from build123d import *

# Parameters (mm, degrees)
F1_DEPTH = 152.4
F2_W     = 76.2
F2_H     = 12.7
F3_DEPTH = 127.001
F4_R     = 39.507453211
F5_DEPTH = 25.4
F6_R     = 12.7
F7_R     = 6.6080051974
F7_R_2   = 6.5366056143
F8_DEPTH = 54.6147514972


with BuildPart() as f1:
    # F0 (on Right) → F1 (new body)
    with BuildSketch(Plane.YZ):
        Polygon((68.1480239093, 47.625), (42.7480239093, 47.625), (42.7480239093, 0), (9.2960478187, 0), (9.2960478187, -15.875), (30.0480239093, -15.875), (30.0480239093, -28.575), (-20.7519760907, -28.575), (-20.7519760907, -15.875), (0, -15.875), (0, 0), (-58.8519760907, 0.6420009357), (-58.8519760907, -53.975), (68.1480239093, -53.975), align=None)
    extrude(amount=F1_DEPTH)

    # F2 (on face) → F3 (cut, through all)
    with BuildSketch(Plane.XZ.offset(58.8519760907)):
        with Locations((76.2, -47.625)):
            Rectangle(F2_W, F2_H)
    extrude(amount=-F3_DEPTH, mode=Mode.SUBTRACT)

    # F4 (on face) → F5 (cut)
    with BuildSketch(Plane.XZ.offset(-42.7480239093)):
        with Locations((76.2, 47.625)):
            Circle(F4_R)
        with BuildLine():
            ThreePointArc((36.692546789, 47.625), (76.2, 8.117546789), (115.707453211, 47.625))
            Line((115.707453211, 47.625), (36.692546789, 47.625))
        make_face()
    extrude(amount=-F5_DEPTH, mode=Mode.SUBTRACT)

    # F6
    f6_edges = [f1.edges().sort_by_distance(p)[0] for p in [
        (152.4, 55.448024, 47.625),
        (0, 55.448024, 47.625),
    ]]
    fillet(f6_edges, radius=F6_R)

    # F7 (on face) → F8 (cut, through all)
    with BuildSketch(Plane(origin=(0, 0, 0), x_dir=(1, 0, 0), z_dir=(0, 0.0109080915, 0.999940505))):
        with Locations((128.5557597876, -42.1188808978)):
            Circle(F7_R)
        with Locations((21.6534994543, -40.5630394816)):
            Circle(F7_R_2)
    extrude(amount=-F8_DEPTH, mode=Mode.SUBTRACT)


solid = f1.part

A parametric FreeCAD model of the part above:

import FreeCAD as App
import Part
import Sketcher
Q = App.Units.Quantity


def edges_at(feature, points):
    """Names of the edges that pass closest to the given points."""
    edges = feature.Shape.Edges
    near = lambda p: min(range(len(edges)), key=lambda i: edges[i].distToShape(Part.Vertex(*p))[0])
    return sorted({f"Edge{near(p) + 1}" for p in points})


def add_polygon(sketch, points):
    """Adds a closed chain of lines whose ends are joined by coincident constraints."""
    first, n = sketch.GeometryCount, len(points)
    for a, b in zip(points, points[1:] + points[:1]):
        sketch.addGeometry(Part.LineSegment(App.Vector(*a, 0), App.Vector(*b, 0)), False)
    for i in range(n):
        sketch.addConstraint(Sketcher.Constraint("Coincident", first + i, 2, first + (i + 1) % n, 1))

doc = App.newDocument("Part")
params = doc.addObject("Spreadsheet::Sheet", "Params")
for row, (alias, value) in enumerate([
    ("sketch1_width", "1 in"),
    ("sketch1_width2", "2 in"),
    ("sketch1_width3", "5 in"),
    ("sketch1_height", "4 in"),
    ("sketch1_height2", "0.5 in"),
    ("pad1_length", "6 in"),
    ("sketch2_width", "3 in"),
    ("sketch2_height", "0.5 in"),
    ("pocket2_length", "1 in"),
    ("fillet_radius", "0.5 in"),
], start=1):
    params.set(f"A{row}", alias)
    params.set(f"B{row}", "=" + value)
    params.setAlias(f"B{row}", alias)

body = doc.addObject("PartDesign::Body", "Body")

# Sketch on YZ plane
sketch1 = body.newObject("Sketcher::SketchObject", "Sketch")
sketch1.AttachmentSupport = (doc.getObject("YZ_Plane"), [""])
sketch1.MapMode = "FlatFace"
add_polygon(sketch1, [(68.148024, 47.625), (42.748024, 47.625), (42.748024, 0), (9.296048, 0), (9.296048, -15.875), (30.048024, -15.875), (30.048024, -28.575), (-20.751976, -28.575), (-20.751976, -15.875), (0, -15.875), (0, 0), (-58.851976, 0.642001), (-58.851976, -53.975), (68.148024, -53.975)])  # lines 0-13
sketch1.addConstraint(Sketcher.Constraint("Horizontal", 0))
sketch1.addConstraint(Sketcher.Constraint("Vertical", 1))
sketch1.addConstraint(Sketcher.Constraint("Horizontal", 2))
sketch1.addConstraint(Sketcher.Constraint("Vertical", 3))
sketch1.addConstraint(Sketcher.Constraint("Horizontal", 4))
sketch1.addConstraint(Sketcher.Constraint("Vertical", 5))
sketch1.addConstraint(Sketcher.Constraint("Horizontal", 6))
sketch1.addConstraint(Sketcher.Constraint("Vertical", 7))
sketch1.addConstraint(Sketcher.Constraint("Horizontal", 8))
sketch1.addConstraint(Sketcher.Constraint("Vertical", 9))
sketch1.addConstraint(Sketcher.Constraint("Vertical", 11))
sketch1.addConstraint(Sketcher.Constraint("Horizontal", 12))
sketch1.addConstraint(Sketcher.Constraint("Vertical", 13))
sketch1.addConstraint(Sketcher.Constraint("Coincident", 9, 2, -1, 1))
sketch1.addConstraint(Sketcher.Constraint("PointOnObject", 1, 2, -1))
sketch1.addConstraint(Sketcher.Constraint("Horizontal", 4, 2, 7, 2))
sketch1.addConstraint(Sketcher.Constraint("Equal", 4, 8))
sketch1.addConstraint(Sketcher.Constraint("DistanceX", 0, 2, 0, 1, Q("1 in")))
sketch1.addConstraint(Sketcher.Constraint("DistanceX", 6, 2, 6, 1, Q("2 in")))
sketch1.addConstraint(Sketcher.Constraint("DistanceX", 12, 1, 12, 2, Q("5 in")))
sketch1.addConstraint(Sketcher.Constraint("DistanceY", 13, 1, 13, 2, Q("4 in")))
sketch1.addConstraint(Sketcher.Constraint("DistanceY", 5, 2, 5, 1, Q("0.5 in")))
sketch1.addConstraint(Sketcher.Constraint("DistanceY", 5, 2, 0, 2, Q("3 in")))
sketch1.addConstraint(Sketcher.Constraint("DistanceX", 4, 2, 1, 2, Q("0.5 in")))
sketch1.addConstraint(Sketcher.Constraint("DistanceY", 1, 2, 1, 1, Q("1.875 in")))
sketch1.addConstraint(Sketcher.Constraint("DistanceY", 11, 2, 11, 1, Q("54.617001 mm")))
sketch1.addConstraint(Sketcher.Constraint("DistanceX", 2, 2, 2, 1, Q("33.451976 mm")))
sketch1.setExpression("Constraints[31]", "Params.sketch1_width")
sketch1.setExpression("Constraints[32]", "Params.sketch1_width2")
sketch1.setExpression("Constraints[33]", "Params.sketch1_width3")
sketch1.setExpression("Constraints[34]", "Params.sketch1_height")
sketch1.setExpression("Constraints[35]", "Params.sketch1_height2")
pad1 = body.newObject("PartDesign::Pad", "Pad")
pad1.Profile = sketch1
pad1.setExpression("Length", "Params.pad1_length")

# Sketch on XZ plane
sketch2 = body.newObject("Sketcher::SketchObject", "Sketch001")
sketch2.AttachmentSupport = (doc.getObject("XZ_Plane"), [""])
sketch2.MapMode = "FlatFace"
sketch2.AttachmentOffset = App.Placement(App.Vector(0, 0, 58.851976), App.Rotation())
add_polygon(sketch2, [(38.1, -41.275), (38.1, -53.975), (114.3, -53.975), (114.3, -41.275)])  # lines 0-3
sketch2.addConstraint(Sketcher.Constraint("Vertical", 0))
sketch2.addConstraint(Sketcher.Constraint("Horizontal", 1))
sketch2.addConstraint(Sketcher.Constraint("Vertical", 2))
sketch2.addConstraint(Sketcher.Constraint("Horizontal", 3))
sketch2.addConstraint(Sketcher.Constraint("DistanceX", 1, 1, 1, 2, Q("3 in")))
sketch2.addConstraint(Sketcher.Constraint("DistanceY", 0, 2, 0, 1, Q("0.5 in")))
sketch2.addConstraint(Sketcher.Constraint("DistanceX", -1, 1, 0, 2, Q("1.5 in")))
sketch2.addConstraint(Sketcher.Constraint("DistanceY", 0, 2, -1, 1, Q("2.125 in")))
sketch2.setExpression("Constraints[8]", "Params.sketch2_width")
sketch2.setExpression("Constraints[9]", "Params.sketch2_height")
pocket1 = body.newObject("PartDesign::Pocket", "Pocket")
pocket1.Profile = sketch2
pocket1.Type = "ThroughAll"

# Sketch on XZ plane
sketch3 = body.newObject("Sketcher::SketchObject", "Sketch002")
sketch3.AttachmentSupport = (doc.getObject("XZ_Plane"), [""])
sketch3.MapMode = "FlatFace"
sketch3.AttachmentOffset = App.Placement(App.Vector(0, 0, -42.748024), App.Rotation())
sketch3.addGeometry(Part.Circle(App.Vector(76.2, 47.625, 0), App.Vector(0, 0, 1), 39.507453), False)
sketch3.addConstraint(Sketcher.Constraint("DistanceX", -1, 1, 0, 3, Q("3 in")))
sketch3.addConstraint(Sketcher.Constraint("DistanceY", -1, 1, 0, 3, Q("1.875 in")))
sketch3.addConstraint(Sketcher.Constraint("Diameter", 0, Q("79.014906 mm")))
pocket2 = body.newObject("PartDesign::Pocket", "Pocket001")
pocket2.Profile = sketch3
pocket2.setExpression("Length", "Params.pocket2_length")
doc.recompute()

fillet = body.newObject("PartDesign::Fillet", "Fillet")
fillet.Base = (pocket2, edges_at(pocket2, [(152.4, 55.448, 47.625), (0, 55.448, 47.625)]))
fillet.setExpression("Radius", "Params.fillet_radius")

# Sketch on an angled plane
sketch4 = body.newObject("Sketcher::SketchObject", "Sketch003")
sketch4.Placement = App.Placement(App.Vector(0, 0, 0), App.Rotation(App.Vector(1, 0, 0), App.Vector(0, 0.999940505, -0.010908092), App.Vector(0, 0.010908092, 0.999940505), "ZXY"))
sketch4.addGeometry(Part.Circle(App.Vector(128.55576, -42.118881, 0), App.Vector(0, 0, 1), 6.608005), False)
sketch4.addGeometry(Part.Circle(App.Vector(21.653499, -40.563039, 0), App.Vector(0, 0, 1), 6.536606), False)
sketch4.addConstraint(Sketcher.Constraint("Diameter", 0, Q("13.21601 mm")))
sketch4.addConstraint(Sketcher.Constraint("Diameter", 1, Q("13.073211 mm")))
sketch4.addConstraint(Sketcher.Constraint("DistanceX", -1, 1, 1, 3, Q("0.8525 in")))
sketch4.addConstraint(Sketcher.Constraint("DistanceX", -1, 1, 0, 3, Q("128.55576 mm")))
sketch4.addConstraint(Sketcher.Constraint("DistanceY", 0, 3, -1, 1, Q("42.118881 mm")))
sketch4.addConstraint(Sketcher.Constraint("DistanceY", 1, 3, -1, 1, Q("40.563039 mm")))
pocket3 = body.newObject("PartDesign::Pocket", "Pocket002")
pocket3.Profile = sketch4
pocket3.Type = "ThroughAll"

doc.recompute()
